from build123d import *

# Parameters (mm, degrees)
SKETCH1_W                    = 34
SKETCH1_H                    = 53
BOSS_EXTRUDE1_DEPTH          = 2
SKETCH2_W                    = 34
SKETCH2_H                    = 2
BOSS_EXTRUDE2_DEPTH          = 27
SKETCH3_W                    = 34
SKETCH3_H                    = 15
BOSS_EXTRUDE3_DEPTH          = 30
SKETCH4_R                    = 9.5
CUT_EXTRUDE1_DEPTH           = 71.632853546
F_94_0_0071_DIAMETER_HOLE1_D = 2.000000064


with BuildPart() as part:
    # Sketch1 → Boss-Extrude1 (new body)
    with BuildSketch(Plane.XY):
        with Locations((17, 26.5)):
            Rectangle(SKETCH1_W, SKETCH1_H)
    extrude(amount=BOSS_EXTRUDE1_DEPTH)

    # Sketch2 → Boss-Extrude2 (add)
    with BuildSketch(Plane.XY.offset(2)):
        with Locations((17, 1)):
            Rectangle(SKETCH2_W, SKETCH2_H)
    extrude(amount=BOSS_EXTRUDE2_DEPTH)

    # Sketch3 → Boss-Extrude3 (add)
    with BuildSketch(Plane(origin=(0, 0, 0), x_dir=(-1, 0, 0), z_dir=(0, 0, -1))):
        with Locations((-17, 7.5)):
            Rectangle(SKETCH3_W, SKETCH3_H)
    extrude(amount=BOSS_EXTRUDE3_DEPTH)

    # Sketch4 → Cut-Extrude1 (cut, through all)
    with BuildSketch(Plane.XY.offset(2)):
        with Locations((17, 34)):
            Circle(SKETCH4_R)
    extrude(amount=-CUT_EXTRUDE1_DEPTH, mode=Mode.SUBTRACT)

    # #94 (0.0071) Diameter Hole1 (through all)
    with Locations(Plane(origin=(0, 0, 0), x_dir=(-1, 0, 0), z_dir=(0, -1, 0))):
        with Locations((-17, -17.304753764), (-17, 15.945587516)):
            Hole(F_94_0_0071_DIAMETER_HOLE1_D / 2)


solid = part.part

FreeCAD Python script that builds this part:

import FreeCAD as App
import Part
import Sketcher

V = App.Vector

doc = App.newDocument("Part")
body = doc.addObject("PartDesign::Body", "Body")

# Sketch on XY plane
sketch1 = body.newObject("Sketcher::SketchObject", "Sketch")
sketch1.AttachmentSupport = (doc.getObject("XY_Plane"), [""])
sketch1.MapMode = "FlatFace"
sketch1.addGeometry(Part.LineSegment(V(0, 53, 0), V(0, 0, 0)), False)
sketch1.addGeometry(Part.LineSegment(V(0, 0, 0), V(34, 0, 0)), False)
sketch1.addGeometry(Part.LineSegment(V(34, 0, 0), V(34, 53, 0)), False)
sketch1.addGeometry(Part.LineSegment(V(34, 53, 0), V(0, 53, 0)), False)
sketch1.addConstraint(Sketcher.Constraint("Coincident", 0, 2, 1, 1))
sketch1.addConstraint(Sketcher.Constraint("Coincident", 1, 2, 2, 1))
sketch1.addConstraint(Sketcher.Constraint("Coincident", 2, 2, 3, 1))
sketch1.addConstraint(Sketcher.Constraint("Coincident", 3, 2, 0, 1))
sketch1.addConstraint(Sketcher.Constraint("Vertical", 0))
sketch1.addConstraint(Sketcher.Constraint("Horizontal", 1))
sketch1.addConstraint(Sketcher.Constraint("Vertical", 2))
sketch1.addConstraint(Sketcher.Constraint("Horizontal", 3))
sketch1.addConstraint(Sketcher.Constraint("Coincident", 0, 2, -1, 1))
sketch1.addConstraint(Sketcher.Constraint("DistanceX", 1, 1, 1, 2, 34.0))
sketch1.addConstraint(Sketcher.Constraint("DistanceY", 0, 2, 0, 1, 53.0))
pad1 = body.newObject("PartDesign::Pad", "Pad")
pad1.Profile = sketch1
pad1.Length = 2

# Sketch on XY plane
sketch2 = body.newObject("Sketcher::SketchObject", "Sketch001")
sketch2.AttachmentSupport = (doc.getObject("XY_Plane"), [""])
sketch2.MapMode = "FlatFace"
sketch2.AttachmentOffset = App.Placement(V(0, 0, 2), App.Rotation())
sketch2.addGeometry(Part.LineSegment(V(0, 2, 0), V(0, 0, 0)), False)
sketch2.addGeometry(Part.LineSegment(V(0, 0, 0), V(34, 0, 0)), False)
sketch2.addGeometry(Part.LineSegment(V(34, 0, 0), V(34, 2, 0)), False)
sketch2.addGeometry(Part.LineSegment(V(34, 2, 0), V(0, 2, 0)), False)
sketch2.addConstraint(Sketcher.Constraint("Coincident", 0, 2, 1, 1))
sketch2.addConstraint(Sketcher.Constraint("Coincident", 1, 2, 2, 1))
sketch2.addConstraint(Sketcher.Constraint("Coincident", 2, 2, 3, 1))
sketch2.addConstraint(Sketcher.Constraint("Coincident", 3, 2, 0, 1))
sketch2.addConstraint(Sketcher.Constraint("Vertical", 0))
sketch2.addConstraint(Sketcher.Constraint("Horizontal", 1))
sketch2.addConstraint(Sketcher.Constraint("Vertical", 2))
sketch2.addConstraint(Sketcher.Constraint("Horizontal", 3))
sketch2.addConstraint(Sketcher.Constraint("Coincident", 0, 2, -1, 1))
sketch2.addConstraint(Sketcher.Constraint("DistanceX", 1, 1, 1, 2, 34.0))
sketch2.addConstraint(Sketcher.Constraint("DistanceY", 0, 2, 0, 1, 2.0))
pad2 = body.newObject("PartDesign::Pad", "Pad001")
pad2.Profile = sketch2
pad2.Length = 27

# Sketch on XY plane
sketch3 = body.newObject("Sketcher::SketchObject", "Sketch002")
sketch3.AttachmentSupport = (doc.getObject("XY_Plane"), [""])
sketch3.MapMode = "FlatFace"
sketch3.addGeometry(Part.LineSegment(V(34, 15, 0), V(34, 0, 0)), False)
sketch3.addGeometry(Part.LineSegment(V(34, 0, 0), V(0, 0, 0)), False)
sketch3.addGeometry(Part.LineSegment(V(0, 0, 0), V(0, 15, 0)), False)
sketch3.addGeometry(Part.LineSegment(V(0, 15, 0), V(34, 15, 0)), False)
sketch3.addConstraint(Sketcher.Constraint("Coincident", 0, 2, 1, 1))
sketch3.addConstraint(Sketcher.Constraint("Coincident", 1, 2, 2, 1))
sketch3.addConstraint(Sketcher.Constraint("Coincident", 2, 2, 3, 1))
sketch3.addConstraint(Sketcher.Constraint("Coincident", 3, 2, 0, 1))
sketch3.addConstraint(Sketcher.Constraint("Vertical", 0))
sketch3.addConstraint(Sketcher.Constraint("Horizontal", 1))
sketch3.addConstraint(Sketcher.Constraint("Vertical", 2))
sketch3.addConstraint(Sketcher.Constraint("Horizontal", 3))
sketch3.addConstraint(Sketcher.Constraint("Coincident", 1, 2, -1, 1))
sketch3.addConstraint(Sketcher.Constraint("DistanceX", 1, 2, 1, 1, 34.0))
sketch3.addConstraint(Sketcher.Constraint("DistanceY", 0, 2, 0, 1, 15.0))
pad3 = body.newObject("PartDesign::Pad", "Pad002")
pad3.Profile = sketch3
pad3.Length = 30
pad3.Reversed = True

# Sketch on XY plane
sketch4 = body.newObject("Sketcher::SketchObject", "Sketch003")
sketch4.AttachmentSupport = (doc.getObject("XY_Plane"), [""])
sketch4.MapMode = "FlatFace"
sketch4.AttachmentOffset = App.Placement(V(0, 0, 2), App.Rotation())
sketch4.addGeometry(Part.Circle(V(17, 34, 0), V(0, 0, 1), 9.5), False)
sketch4.addConstraint(Sketcher.Constraint("Diameter", 0, 19.0))
sketch4.addConstraint(Sketcher.Constraint("DistanceX", -1, 1, 0, 3, 17.0))
sketch4.addConstraint(Sketcher.Constraint("DistanceY", -1, 1, 0, 3, 34.0))
pocket1 = body.newObject("PartDesign::Pocket", "Pocket")
pocket1.Profile = sketch4
pocket1.Type = "ThroughAll"

# Sketch on XZ plane
sketch5 = body.newObject("Sketcher::SketchObject", "Sketch004")
sketch5.AttachmentSupport = (doc.getObject("XZ_Plane"), [""])
sketch5.MapMode = "FlatFace"
sketch5.addGeometry(Part.Circle(V(17, 17.304754, 0), V(0, 0, 1), 1), False)
sketch5.addGeometry(Part.Circle(V(17, -15.945588, 0), V(0, 0, 1), 1), False)
sketch5.addConstraint(Sketcher.Constraint("Equal", 0, 1))
sketch5.addConstraint(Sketcher.Constraint("Vertical", 0, 3, 1, 3))
sketch5.addConstraint(Sketcher.Constraint("Diameter", 0, 2.0))
sketch5.addConstraint(Sketcher.Constraint("DistanceX", -1, 1, 0, 3, 17.0))
sketch5.addConstraint(Sketcher.Constraint("DistanceY", 1, 3, 0, 3, 33.250341))
sketch5.addConstraint(Sketcher.Constraint("DistanceY", -1, 1, 0, 3, 17.304754))
doc.recompute()
hole = body.newObject("PartDesign::Hole", "Hole")
hole.Profile = sketch5
hole.ThreadType = "None"
hole.Diameter = 2
hole.DepthType = "ThroughAll"

doc.recompute()
